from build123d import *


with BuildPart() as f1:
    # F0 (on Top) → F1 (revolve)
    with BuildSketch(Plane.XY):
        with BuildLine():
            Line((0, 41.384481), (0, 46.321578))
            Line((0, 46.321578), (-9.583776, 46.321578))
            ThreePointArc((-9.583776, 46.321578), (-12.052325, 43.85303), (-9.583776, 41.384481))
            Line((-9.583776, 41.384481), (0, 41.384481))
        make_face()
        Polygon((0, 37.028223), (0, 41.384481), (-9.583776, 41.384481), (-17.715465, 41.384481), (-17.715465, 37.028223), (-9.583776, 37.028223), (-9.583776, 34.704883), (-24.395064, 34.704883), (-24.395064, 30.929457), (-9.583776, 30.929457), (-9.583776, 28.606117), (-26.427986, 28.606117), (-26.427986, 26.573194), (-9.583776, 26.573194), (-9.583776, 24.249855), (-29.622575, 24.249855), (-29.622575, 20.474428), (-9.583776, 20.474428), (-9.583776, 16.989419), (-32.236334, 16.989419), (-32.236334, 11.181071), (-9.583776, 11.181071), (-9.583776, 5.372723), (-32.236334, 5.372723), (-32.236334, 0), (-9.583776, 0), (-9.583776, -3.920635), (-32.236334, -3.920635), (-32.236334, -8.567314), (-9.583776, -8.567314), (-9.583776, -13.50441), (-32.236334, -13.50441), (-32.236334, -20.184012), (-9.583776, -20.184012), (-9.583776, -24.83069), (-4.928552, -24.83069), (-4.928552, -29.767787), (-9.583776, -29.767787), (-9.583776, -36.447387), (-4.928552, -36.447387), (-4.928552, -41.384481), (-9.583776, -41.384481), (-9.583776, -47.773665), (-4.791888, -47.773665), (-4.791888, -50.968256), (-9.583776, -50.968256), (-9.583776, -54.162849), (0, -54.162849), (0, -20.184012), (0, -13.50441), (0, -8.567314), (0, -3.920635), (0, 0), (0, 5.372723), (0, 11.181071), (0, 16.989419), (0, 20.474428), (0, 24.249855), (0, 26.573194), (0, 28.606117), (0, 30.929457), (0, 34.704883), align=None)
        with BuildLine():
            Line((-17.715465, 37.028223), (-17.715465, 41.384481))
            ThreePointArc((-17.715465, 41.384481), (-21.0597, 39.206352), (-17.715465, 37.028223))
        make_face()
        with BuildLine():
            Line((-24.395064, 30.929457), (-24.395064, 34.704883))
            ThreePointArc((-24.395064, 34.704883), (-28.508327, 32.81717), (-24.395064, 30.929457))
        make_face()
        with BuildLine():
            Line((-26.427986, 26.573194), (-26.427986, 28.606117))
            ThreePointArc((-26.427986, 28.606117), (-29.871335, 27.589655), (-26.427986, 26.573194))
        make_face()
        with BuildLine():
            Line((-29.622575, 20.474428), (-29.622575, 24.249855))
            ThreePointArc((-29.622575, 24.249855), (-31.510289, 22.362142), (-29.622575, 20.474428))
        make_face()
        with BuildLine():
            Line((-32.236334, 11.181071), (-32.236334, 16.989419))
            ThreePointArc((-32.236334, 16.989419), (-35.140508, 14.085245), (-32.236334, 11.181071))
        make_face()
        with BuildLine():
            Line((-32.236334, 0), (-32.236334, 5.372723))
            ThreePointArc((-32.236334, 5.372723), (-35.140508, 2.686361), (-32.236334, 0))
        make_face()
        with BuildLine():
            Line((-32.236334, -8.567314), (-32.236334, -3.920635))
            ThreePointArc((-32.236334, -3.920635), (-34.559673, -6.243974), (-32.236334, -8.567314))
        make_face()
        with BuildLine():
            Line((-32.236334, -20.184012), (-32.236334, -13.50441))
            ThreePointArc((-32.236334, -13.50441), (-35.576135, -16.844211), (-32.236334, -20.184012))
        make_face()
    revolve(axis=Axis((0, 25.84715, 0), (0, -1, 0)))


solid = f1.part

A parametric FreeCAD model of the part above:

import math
import FreeCAD as App
import Part
import Sketcher
from FreeCAD import Vector

doc = App.newDocument("Part")
body = doc.addObject("PartDesign::Body", "Body")

# Sketch on XY plane
sketch1 = body.newObject("Sketcher::SketchObject", "Sketch")
sketch1.AttachmentSupport = (doc.getObject("XY_Plane"), [""])
sketch1.MapMode = "FlatFace"
sketch1.addGeometry(Part.LineSegment(Vector(0, 46.321578, 0), Vector(-9.583776, 46.321578, 0)), False)
sketch1.addGeometry(Part.ArcOfCircle(Part.Circle(Vector(-9.583777, 43.853029, 0), Vector(0, 0, 1), 2.468548), math.radians(89.999988), math.radians(270.000012)), False)
sketch1.addGeometry(Part.LineSegment(Vector(-9.583776, 41.384481, 0), Vector(-17.715465, 41.384481, 0)), False)
sketch1.addGeometry(Part.ArcOfCircle(Part.Circle(Vector(-18.678265, 39.206352, 0), Vector(0, 0, 1), 2.381435), math.radians(66.153088), math.radians(293.846912)), False)
sketch1.addGeometry(Part.LineSegment(Vector(-17.715465, 37.028223, 0), Vector(-9.583776, 37.028223, 0)), False)
sketch1.addGeometry(Part.LineSegment(Vector(-9.583776, 37.028223, 0), Vector(-9.583776, 34.704883, 0)), False)
sketch1.addGeometry(Part.LineSegment(Vector(-9.583776, 34.704883, 0), Vector(-24.395064, 34.704883, 0)), False)
sketch1.addGeometry(Part.ArcOfCircle(Part.Circle(Vector(-26.018528, 32.81717, 0), Vector(0, 0, 1), 2.489799), math.radians(49.303924), math.radians(310.696076)), False)
sketch1.addGeometry(Part.LineSegment(Vector(-24.395064, 30.929457, 0), Vector(-9.583776, 30.929457, 0)), False)
sketch1.addGeometry(Part.LineSegment(Vector(-9.583776, 30.929457, 0), Vector(-9.583776, 28.606117, 0)), False)
sketch1.addGeometry(Part.LineSegment(Vector(-9.583776, 28.606117, 0), Vector(-26.427986, 28.606117, 0)), False)
sketch1.addGeometry(Part.ArcOfCircle(Part.Circle(Vector(-27.999633, 27.589655, 0), Vector(0, 0, 1), 1.871702), math.radians(32.892738), math.radians(327.107262)), False)
sketch1.addGeometry(Part.LineSegment(Vector(-26.427986, 26.573194, 0), Vector(-9.583776, 26.573194, 0)), False)
sketch1.addGeometry(Part.LineSegment(Vector(-9.583776, 26.573194, 0), Vector(-9.583776, 24.249855, 0)), False)
sketch1.addGeometry(Part.LineSegment(Vector(-9.583776, 24.249855, 0), Vector(-29.622575, 24.249855, 0)), False)
sketch1.addGeometry(Part.ArcOfCircle(Part.Circle(Vector(-29.622575, 22.362141, 0), Vector(0, 0, 1), 1.887714), math.radians(89.999985), math.radians(270.000015)), False)
sketch1.addGeometry(Part.LineSegment(Vector(-29.622575, 20.474428, 0), Vector(-9.583776, 20.474428, 0)), False)
sketch1.addGeometry(Part.LineSegment(Vector(-9.583776, 20.474428, 0), Vector(-9.583776, 16.989419, 0)), False)
sketch1.addGeometry(Part.LineSegment(Vector(-9.583776, 16.989419, 0), Vector(-32.236334, 16.989419, 0)), False)
sketch1.addGeometry(Part.ArcOfCircle(Part.Circle(Vector(-32.236334, 14.085245, 0), Vector(0, 0, 1), 2.904174), math.radians(90), math.radians(270)), False)
sketch1.addGeometry(Part.LineSegment(Vector(-32.236334, 11.181071, 0), Vector(-9.583776, 11.181071, 0)), False)
sketch1.addGeometry(Part.LineSegment(Vector(-9.583776, 11.181071, 0), Vector(-9.583776, 5.372723, 0)), False)
sketch1.addGeometry(Part.LineSegment(Vector(-9.583776, 5.372723, 0), Vector(-32.236334, 5.372723, 0)), False)
sketch1.addGeometry(Part.ArcOfCircle(Part.Circle(Vector(-32.445979, 2.686361, 0), Vector(0, 0, 1), 2.694529), math.radians(85.537662), math.radians(274.462338)), False)
sketch1.addGeometry(Part.LineSegment(Vector(-32.236334, 0, 0), Vector(-9.583776, 0, 0)), False)
sketch1.addGeometry(Part.LineSegment(Vector(-9.583776, 0, 0), Vector(-9.583776, -3.920635, 0)), False)
sketch1.addGeometry(Part.LineSegment(Vector(-9.583776, -3.920635, 0), Vector(-32.236334, -3.920635, 0)), False)
sketch1.addGeometry(Part.ArcOfCircle(Part.Circle(Vector(-32.236334, -6.243975, 0), Vector(0, 0, 1), 2.323339), math.radians(90.000012), math.radians(269.999988)), False)
sketch1.addGeometry(Part.LineSegment(Vector(-32.236334, -8.567314, 0), Vector(-9.583776, -8.567314, 0)), False)
sketch1.addGeometry(Part.LineSegment(Vector(-9.583776, -8.567314, 0), Vector(-9.583776, -13.50441, 0)), False)
sketch1.addGeometry(Part.LineSegment(Vector(-9.583776, -13.50441, 0), Vector(-32.236334, -13.50441, 0)), False)
sketch1.addGeometry(Part.ArcOfCircle(Part.Circle(Vector(-32.236334, -16.844211, 0), Vector(0, 0, 1), 3.339801), math.radians(90), math.radians(270)), False)
sketch1.addGeometry(Part.LineSegment(Vector(-32.236334, -20.184012, 0), Vector(-9.583776, -20.184012, 0)), False)
sketch1.addGeometry(Part.LineSegment(Vector(-9.583776, -20.184012, 0), Vector(-9.583776, -24.83069, 0)), False)
sketch1.addGeometry(Part.LineSegment(Vector(-9.583776, -24.83069, 0), Vector(-4.928552, -24.83069, 0)), False)
sketch1.addGeometry(Part.LineSegment(Vector(-4.928552, -24.83069, 0), Vector(-4.928552, -29.767787, 0)), False)
sketch1.addGeometry(Part.LineSegment(Vector(-4.928552, -29.767787, 0), Vector(-9.583776, -29.767787, 0)), False)
sketch1.addGeometry(Part.LineSegment(Vector(-9.583776, -29.767787, 0), Vector(-9.583776, -36.447387, 0)), False)
sketch1.addGeometry(Part.LineSegment(Vector(-9.583776, -36.447387, 0), Vector(-4.928552, -36.447387, 0)), False)
sketch1.addGeometry(Part.LineSegment(Vector(-4.928552, -36.447387, 0), Vector(-4.928552, -41.384481, 0)), False)
sketch1.addGeometry(Part.LineSegment(Vector(-4.928552, -41.384481, 0), Vector(-9.583776, -41.384481, 0)), False)
sketch1.addGeometry(Part.LineSegment(Vector(-9.583776, -41.384481, 0), Vector(-9.583776, -47.773665, 0)), False)
sketch1.addGeometry(Part.LineSegment(Vector(-9.583776, -47.773665, 0), Vector(-4.791888, -47.773665, 0)), False)
sketch1.addGeometry(Part.LineSegment(Vector(-4.791888, -47.773665, 0), Vector(-4.791888, -50.968256, 0)), False)
sketch1.addGeometry(Part.LineSegment(Vector(-4.791888, -50.968256, 0), Vector(-9.583776, -50.968256, 0)), False)
sketch1.addGeometry(Part.LineSegment(Vector(-9.583776, -50.968256, 0), Vector(-9.583776, -54.162849, 0)), False)
sketch1.addGeometry(Part.LineSegment(Vector(-9.583776, -54.162849, 0), Vector(0, -54.162849, 0)), False)
sketch1.addGeometry(Part.LineSegment(Vector(0, -54.162849, 0), Vector(0, 46.321578, 0)), False)
sketch1.addConstraint(Sketcher.Constraint("Coincident", 0, 2, 1, 1))
sketch1.addConstraint(Sketcher.Constraint("Coincident", 1, 2, 2, 1))
sketch1.addConstraint(Sketcher.Constraint("Coincident", 2, 2, 3, 1))
sketch1.addConstraint(Sketcher.Constraint("Coincident", 3, 2, 4, 1))
sketch1.addConstraint(Sketcher.Constraint("Coincident", 4, 2, 5, 1))
sketch1.addConstraint(Sketcher.Constraint("Coincident", 5, 2, 6, 1))
sketch1.addConstraint(Sketcher.Constraint("Coincident", 6, 2, 7, 1))
sketch1.addConstraint(Sketcher.Constraint("Coincident", 7, 2, 8, 1))
sketch1.addConstraint(Sketcher.Constraint("Coincident", 8, 2, 9, 1))
sketch1.addConstraint(Sketcher.Constraint("Coincident", 9, 2, 10, 1))
sketch1.addConstraint(Sketcher.Constraint("Coincident", 10, 2, 11, 1))
sketch1.addConstraint(Sketcher.Constraint("Coincident", 11, 2, 12, 1))
sketch1.addConstraint(Sketcher.Constraint("Coincident", 12, 2, 13, 1))
sketch1.addConstraint(Sketcher.Constraint("Coincident", 13, 2, 14, 1))
sketch1.addConstraint(Sketcher.Constraint("Coincident", 14, 2, 15, 1))
sketch1.addConstraint(Sketcher.Constraint("Coincident", 15, 2, 16, 1))
sketch1.addConstraint(Sketcher.Constraint("Coincident", 16, 2, 17, 1))
sketch1.addConstraint(Sketcher.Constraint("Coincident", 17, 2, 18, 1))
sketch1.addConstraint(Sketcher.Constraint("Coincident", 18, 2, 19, 1))
sketch1.addConstraint(Sketcher.Constraint("Coincident", 19, 2, 20, 1))
sketch1.addConstraint(Sketcher.Constraint("Coincident", 20, 2, 21, 1))
sketch1.addConstraint(Sketcher.Constraint("Coincident", 21, 2, 22, 1))
sketch1.addConstraint(Sketcher.Constraint("Coincident", 22, 2, 23, 1))
sketch1.addConstraint(Sketcher.Constraint("Coincident", 23, 2, 24, 1))
sketch1.addConstraint(Sketcher.Constraint("Coincident", 24, 2, 25, 1))
sketch1.addConstraint(Sketcher.Constraint("Coincident", 25, 2, 26, 1))
sketch1.addConstraint(Sketcher.Constraint("Coincident", 26, 2, 27, 1))
sketch1.addConstraint(Sketcher.Constraint("Coincident", 27, 2, 28, 1))
sketch1.addConstraint(Sketcher.Constraint("Coincident", 28, 2, 29, 1))
sketch1.addConstraint(Sketcher.Constraint("Coincident", 29, 2, 30, 1))
sketch1.addConstraint(Sketcher.Constraint("Coincident", 30, 2, 31, 1))
sketch1.addConstraint(Sketcher.Constraint("Coincident", 31, 2, 32, 1))
sketch1.addConstraint(Sketcher.Constraint("Coincident", 32, 2, 33, 1))
sketch1.addConstraint(Sketcher.Constraint("Coincident", 33, 2, 34, 1))
sketch1.addConstraint(Sketcher.Constraint("Coincident", 34, 2, 35, 1))
sketch1.addConstraint(Sketcher.Constraint("Coincident", 35, 2, 36, 1))
sketch1.addConstraint(Sketcher.Constraint("Coincident", 36, 2, 37, 1))
sketch1.addConstraint(Sketcher.Constraint("Coincident", 37, 2, 38, 1))
sketch1.addConstraint(Sketcher.Constraint("Coincident", 38, 2, 39, 1))
sketch1.addConstraint(Sketcher.Constraint("Coincident", 39, 2, 40, 1))
sketch1.addConstraint(Sketcher.Constraint("Coincident", 40, 2, 41, 1))
sketch1.addConstraint(Sketcher.Constraint("Coincident", 41, 2, 42, 1))
sketch1.addConstraint(Sketcher.Constraint("Coincident", 42, 2, 43, 1))
sketch1.addConstraint(Sketcher.Constraint("Coincident", 43, 2, 44, 1))
sketch1.addConstraint(Sketcher.Constraint("Coincident", 44, 2, 45, 1))
sketch1.addConstraint(Sketcher.Constraint("Coincident", 45, 2, 46, 1))
sketch1.addConstraint(Sketcher.Constraint("Coincident", 46, 2, 47, 1))
sketch1.addConstraint(Sketcher.Constraint("Coincident", 47, 2, 0, 1))
sketch1.addConstraint(Sketcher.Constraint("Horizontal", 0))
sketch1.addConstraint(Sketcher.Constraint("Horizontal", 2))
sketch1.addConstraint(Sketcher.Constraint("Horizontal", 4))
sketch1.addConstraint(Sketcher.Constraint("Vertical", 5))
sketch1.addConstraint(Sketcher.Constraint("Horizontal", 6))
sketch1.addConstraint(Sketcher.Constraint("Horizontal", 8))
sketch1.addConstraint(Sketcher.Constraint("Vertical", 9))
sketch1.addConstraint(Sketcher.Constraint("Horizontal", 10))
sketch1.addConstraint(Sketcher.Constraint("Horizontal", 12))
sketch1.addConstraint(Sketcher.Constraint("Vertical", 13))
sketch1.addConstraint(Sketcher.Constraint("Horizontal", 14))
sketch1.addConstraint(Sketcher.Constraint("Horizontal", 16))
sketch1.addConstraint(Sketcher.Constraint("Vertical", 17))
sketch1.addConstraint(Sketcher.Constraint("Horizontal", 18))
sketch1.addConstraint(Sketcher.Constraint("Horizontal", 20))
sketch1.addConstraint(Sketcher.Constraint("Vertical", 21))
sketch1.addConstraint(Sketcher.Constraint("Horizontal", 22))
sketch1.addConstraint(Sketcher.Constraint("Horizontal", 24))
sketch1.addConstraint(Sketcher.Constraint("Vertical", 25))
sketch1.addConstraint(Sketcher.Constraint("Horizontal", 26))
sketch1.addConstraint(Sketcher.Constraint("Horizontal", 28))
sketch1.addConstraint(Sketcher.Constraint("Vertical", 29))
sketch1.addConstraint(Sketcher.Constraint("Horizontal", 30))
sketch1.addConstraint(Sketcher.Constraint("Horizontal", 32))
sketch1.addConstraint(Sketcher.Constraint("Vertical", 33))
sketch1.addConstraint(Sketcher.Constraint("Horizontal", 34))
sketch1.addConstraint(Sketcher.Constraint("Vertical", 35))
sketch1.addConstraint(Sketcher.Constraint("Horizontal", 36))
sketch1.addConstraint(Sketcher.Constraint("Vertical", 37))
sketch1.addConstraint(Sketcher.Constraint("Horizontal", 38))
sketch1.addConstraint(Sketcher.Constraint("Vertical", 39))
sketch1.addConstraint(Sketcher.Constraint("Horizontal", 40))
sketch1.addConstraint(Sketcher.Constraint("Vertical", 41))
sketch1.addConstraint(Sketcher.Constraint("Horizontal", 42))
sketch1.addConstraint(Sketcher.Constraint("Vertical", 43))
sketch1.addConstraint(Sketcher.Constraint("Horizontal", 44))
sketch1.addConstraint(Sketcher.Constraint("Vertical", 45))
sketch1.addConstraint(Sketcher.Constraint("Horizontal", 46))
sketch1.addConstraint(Sketcher.Constraint("Vertical", 47))
sketch1.addConstraint(Sketcher.Constraint("PointOnObject", 23, 2, -1))
sketch1.addConstraint(Sketcher.Constraint("PointOnObject", 46, 2, -2))
sketch1.addConstraint(Sketcher.Constraint("Radius", 7, 2.489799))
sketch1.addConstraint(Sketcher.Constraint("Radius", 11, 1.871702))
sketch1.addConstraint(Sketcher.Constraint("Radius", 31, 3.339801))
sketch1.addConstraint(Sketcher.Constraint("Radius", 1, 2.468548))
sketch1.addConstraint(Sketcher.Constraint("Radius", 23, 2.694529))
sketch1.addConstraint(Sketcher.Constraint("Radius", 27, 2.323339))
sketch1.addConstraint(Sketcher.Constraint("DistanceX", 14, 2, 14, 1, 20.038799))
sketch1.addConstraint(Sketcher.Constraint("DistanceX", 16, 1, 16, 2, 20.038799))
sketch1.addConstraint(Sketcher.Constraint("DistanceY", 37, 2, 37, 1, 6.6796))
sketch1.addConstraint(Sketcher.Constraint("Radius", 3, 2.381435))
sketch1.addConstraint(Sketcher.Constraint("Radius", 15, 1.887714))
sketch1.addConstraint(Sketcher.Constraint("Radius", 19, 2.904174))
sketch1.addConstraint(Sketcher.Constraint("DistanceX", 2, 2, 2, 1, 8.131689))
sketch1.addConstraint(Sketcher.Constraint("DistanceX", 4, 1, 4, 2, 8.131689))
sketch1.addConstraint(Sketcher.Constraint("DistanceX", 6, 2, 6, 1, 14.811288))
sketch1.addConstraint(Sketcher.Constraint("DistanceX", 8, 1, 8, 2, 14.811288))
sketch1.addConstraint(Sketcher.Constraint("DistanceX", 10, 2, 10, 1, 16.84421))
sketch1.addConstraint(Sketcher.Constraint("DistanceX", 12, 1, 12, 2, 16.84421))
sketch1.addConstraint(Sketcher.Constraint("DistanceY", 5, 2, 5, 1, 2.32334))
sketch1.addConstraint(Sketcher.Constraint("DistanceY", 9, 2, 9, 1, 2.32334))
sketch1.addConstraint(Sketcher.Constraint("DistanceY", 13, 2, 13, 1, 2.323339))
sketch1.addConstraint(Sketcher.Constraint("DistanceY", 17, 2, 17, 1, 3.485009))
sketch1.addConstraint(Sketcher.Constraint("DistanceY", 33, 2, 33, 1, 4.646678))
sketch1.addConstraint(Sketcher.Constraint("DistanceY", 43, 2, 43, 1, 3.194591))
sketch1.addConstraint(Sketcher.Constraint("DistanceX", 15, 3, 1, 3, 20.038799))
sketch1.addConstraint(Sketcher.Constraint("DistanceX", 19, 3, 11, 3, 4.236701))
sketch1.addConstraint(Sketcher.Constraint("DistanceX", 27, 3, 11, 3, 4.2367))
sketch1.addConstraint(Sketcher.Constraint("DistanceX", 31, 3, 11, 3, 4.236701))
sketch1.addConstraint(Sketcher.Constraint("DistanceX", 15, 3, 0, 2, 20.038799))
sketch1.addConstraint(Sketcher.Constraint("DistanceX", 3, 3, 2, 2, 0.9628))
sketch1.addConstraint(Sketcher.Constraint("DistanceX", 3, 3, 3, 2, 0.9628))
sketch1.addConstraint(Sketcher.Constraint("DistanceY", 11, 3, 7, 2, 3.339802))
sketch1.addConstraint(Sketcher.Constraint("DistanceX", 7, 2, 3, 2, 6.679599))
sketch1.addConstraint(Sketcher.Constraint("DistanceY", 13, 2, 8, 2, 6.679602))
sketch1.addConstraint(Sketcher.Constraint("DistanceY", 31, 2, 27, 2, 11.616698))
sketch1.addConstraint(Sketcher.Constraint("DistanceX", 0, 2, 0, 1, 9.583776))
sketch1.addConstraint(Sketcher.Constraint("DistanceX", 18, 2, 18, 1, 22.652558))
sketch1.addConstraint(Sketcher.Constraint("DistanceX", 20, 1, 20, 2, 22.652558))
sketch1.addConstraint(Sketcher.Constraint("DistanceX", 22, 2, 22, 1, 22.652558))
sketch1.addConstraint(Sketcher.Constraint("DistanceX", 24, 1, 24, 2, 22.652558))
sketch1.addConstraint(Sketcher.Constraint("DistanceX", 26, 2, 26, 1, 22.652558))
sketch1.addConstraint(Sketcher.Constraint("DistanceX", 28, 1, 28, 2, 22.652558))
sketch1.addConstraint(Sketcher.Constraint("DistanceX", 30, 2, 30, 1, 22.652558))
sketch1.addConstraint(Sketcher.Constraint("DistanceX", 32, 1, 32, 2, 22.652558))
sketch1.addConstraint(Sketcher.Constraint("DistanceX", 34, 1, 34, 2, 4.655224))
sketch1.addConstraint(Sketcher.Constraint("DistanceX", 36, 2, 36, 1, 4.655224))
sketch1.addConstraint(Sketcher.Constraint("DistanceX", 38, 1, 38, 2, 4.655224))
sketch1.addConstraint(Sketcher.Constraint("DistanceX", 40, 2, 40, 1, 4.655224))
sketch1.addConstraint(Sketcher.Constraint("DistanceX", 42, 1, 42, 2, 4.791888))
sketch1.addConstraint(Sketcher.Constraint("DistanceX", 44, 2, 44, 1, 4.791888))
sketch1.addConstraint(Sketcher.Constraint("DistanceX", 46, 1, 46, 2, 9.583776))
sketch1.addConstraint(Sketcher.Constraint("DistanceY", 21, 2, 21, 1, 5.808348))
sketch1.addConstraint(Sketcher.Constraint("DistanceY", 25, 2, 25, 1, 3.920635))
sketch1.addConstraint(Sketcher.Constraint("DistanceY", 35, 2, 35, 1, 4.937097))
sketch1.addConstraint(Sketcher.Constraint("DistanceY", 39, 2, 39, 1, 4.937094))
sketch1.addConstraint(Sketcher.Constraint("DistanceY", 41, 2, 41, 1, 6.389184))
sketch1.addConstraint(Sketcher.Constraint("DistanceY", 45, 2, 45, 1, 3.194593))
sketch1.addConstraint(Sketcher.Constraint("DistanceY", 47, 1, 47, 2, 100.484427))
sketch1.addConstraint(Sketcher.Constraint("DistanceX", 7, 3, -1, 1, 26.018528))
sketch1.addConstraint(Sketcher.Constraint("DistanceY", -1, 1, 7, 3, 32.81717))
sketch1.addConstraint(Sketcher.Constraint("DistanceX", 23, 3, -1, 1, 32.445979))
sketch1.addConstraint(Sketcher.Constraint("DistanceY", -1, 1, 23, 3, 2.686361))
sketch1.addConstraint(Sketcher.Constraint("DistanceX", 15, 2, 11, 2, 3.194589))
sketch1.addConstraint(Sketcher.Constraint("DistanceX", 27, 2, -1, 1, 32.236334))
revolution = body.newObject("PartDesign::Revolution", "Revolution")
revolution.Profile = sketch1
revolution.ReferenceAxis = (sketch1, ["V_Axis"])
revolution.Angle = 360

doc.recompute()
